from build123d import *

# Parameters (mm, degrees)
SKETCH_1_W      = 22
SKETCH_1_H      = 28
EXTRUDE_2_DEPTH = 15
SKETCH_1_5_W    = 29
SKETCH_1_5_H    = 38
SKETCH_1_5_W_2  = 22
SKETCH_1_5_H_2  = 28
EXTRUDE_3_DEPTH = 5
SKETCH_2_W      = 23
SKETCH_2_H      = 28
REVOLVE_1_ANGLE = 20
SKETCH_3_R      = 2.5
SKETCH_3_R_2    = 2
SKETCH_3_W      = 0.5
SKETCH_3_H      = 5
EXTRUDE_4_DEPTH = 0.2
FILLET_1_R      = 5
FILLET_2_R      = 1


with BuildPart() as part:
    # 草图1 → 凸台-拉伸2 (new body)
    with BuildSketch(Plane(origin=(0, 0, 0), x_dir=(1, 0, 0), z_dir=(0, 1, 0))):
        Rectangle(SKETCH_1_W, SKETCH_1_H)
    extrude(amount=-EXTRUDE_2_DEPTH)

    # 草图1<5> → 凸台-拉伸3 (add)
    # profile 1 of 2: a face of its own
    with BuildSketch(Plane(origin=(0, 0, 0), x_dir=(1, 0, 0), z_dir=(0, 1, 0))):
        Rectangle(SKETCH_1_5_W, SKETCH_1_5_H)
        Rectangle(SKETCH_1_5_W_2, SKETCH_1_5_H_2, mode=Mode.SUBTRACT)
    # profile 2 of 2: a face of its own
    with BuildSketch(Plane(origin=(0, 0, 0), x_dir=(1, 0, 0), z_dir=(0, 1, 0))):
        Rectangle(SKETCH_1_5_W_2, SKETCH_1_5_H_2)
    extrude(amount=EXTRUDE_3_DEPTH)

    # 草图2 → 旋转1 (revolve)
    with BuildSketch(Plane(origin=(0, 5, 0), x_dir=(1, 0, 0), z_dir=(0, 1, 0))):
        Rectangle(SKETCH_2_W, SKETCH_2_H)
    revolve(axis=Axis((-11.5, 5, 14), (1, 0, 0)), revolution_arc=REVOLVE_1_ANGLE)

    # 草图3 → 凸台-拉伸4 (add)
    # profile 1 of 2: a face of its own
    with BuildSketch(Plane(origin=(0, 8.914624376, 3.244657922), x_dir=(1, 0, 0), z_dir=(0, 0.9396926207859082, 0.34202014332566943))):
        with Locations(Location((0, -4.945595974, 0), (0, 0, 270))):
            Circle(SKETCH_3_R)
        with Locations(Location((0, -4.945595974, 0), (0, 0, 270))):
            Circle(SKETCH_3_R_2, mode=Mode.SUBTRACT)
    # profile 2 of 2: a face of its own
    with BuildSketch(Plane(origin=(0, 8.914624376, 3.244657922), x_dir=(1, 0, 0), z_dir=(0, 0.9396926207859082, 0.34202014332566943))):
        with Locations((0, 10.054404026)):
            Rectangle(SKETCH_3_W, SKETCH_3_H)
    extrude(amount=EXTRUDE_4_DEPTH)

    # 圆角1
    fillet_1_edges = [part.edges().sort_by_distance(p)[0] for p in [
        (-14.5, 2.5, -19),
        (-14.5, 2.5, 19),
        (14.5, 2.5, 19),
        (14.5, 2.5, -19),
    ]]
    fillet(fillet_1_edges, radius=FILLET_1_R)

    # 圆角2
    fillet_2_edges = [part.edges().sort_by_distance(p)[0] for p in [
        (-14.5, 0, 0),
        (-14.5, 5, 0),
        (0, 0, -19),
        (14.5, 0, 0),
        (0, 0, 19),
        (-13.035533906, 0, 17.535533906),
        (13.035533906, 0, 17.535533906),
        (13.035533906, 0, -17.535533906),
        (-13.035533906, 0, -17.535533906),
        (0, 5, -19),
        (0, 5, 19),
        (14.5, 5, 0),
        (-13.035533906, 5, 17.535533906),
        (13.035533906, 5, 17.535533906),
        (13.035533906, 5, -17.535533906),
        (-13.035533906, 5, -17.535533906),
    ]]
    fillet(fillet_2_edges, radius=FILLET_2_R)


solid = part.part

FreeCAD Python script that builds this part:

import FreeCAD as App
import Part
import Sketcher
from FreeCAD import Vector


def edges_at(feature, points):
    """Names of the edges that pass closest to the given points."""
    edges = feature.Shape.Edges
    near = lambda p: min(range(len(edges)), key=lambda i: edges[i].distToShape(Part.Vertex(*p))[0])
    return sorted({f"Edge{near(p) + 1}" for p in points})


def add_polygon(sketch, points):
    """Adds a closed chain of lines whose ends are joined by coincident constraints."""
    first, n = sketch.GeometryCount, len(points)
    for a, b in zip(points, points[1:] + points[:1]):
        sketch.addGeometry(Part.LineSegment(App.Vector(*a, 0), App.Vector(*b, 0)), False)
    for i in range(n):
        sketch.addConstraint(Sketcher.Constraint("Coincident", first + i, 2, first + (i + 1) % n, 1))

doc = App.newDocument("Part")
params = doc.addObject("Spreadsheet::Sheet", "Params")
for row, (alias, value) in enumerate([
    ("sketch1_width", "22 mm"),
    ("sketch1_height", "28 mm"),
    ("pad1_length", "15 mm"),
    ("sketch2_width", "29 mm"),
    ("sketch2_height", "38 mm"),
    ("pad2_length", "5 mm"),
    ("sketch3_width", "23 mm"),
    ("sketch3_height", "28 mm"),
    ("revolution_angle", "20 deg"),
    ("sketch4_diameter", "5 mm"),
    ("sketch4_diameter2", "4 mm"),
    ("sketch4_height", "5 mm"),
    ("sketch4_width", "0.5 mm"),
    ("pad3_length", "0.2 mm"),
    ("fillet_radius", "5 mm"),
    ("fillet2_radius", "1 mm"),
], start=1):
    params.set(f"A{row}", alias)
    params.set(f"B{row}", "=" + value)
    params.setAlias(f"B{row}", alias)

body = doc.addObject("PartDesign::Body", "Body")

# Sketch on XZ plane
sketch1 = body.newObject("Sketcher::SketchObject", "Sketch")
sketch1.AttachmentSupport = (doc.getObject("XZ_Plane"), [""])
sketch1.MapMode = "FlatFace"
add_polygon(sketch1, [(-11, -14), (-11, 14), (11, 14), (11, -14)])  # lines 0-3
sketch1.addConstraint(Sketcher.Constraint("Vertical", 0))
sketch1.addConstraint(Sketcher.Constraint("Horizontal", 1))
sketch1.addConstraint(Sketcher.Constraint("Vertical", 2))
sketch1.addConstraint(Sketcher.Constraint("Horizontal", 3))
sketch1.addConstraint(Sketcher.Constraint("Symmetric", 0, 2, 2, 2, -1, 1))
sketch1.addConstraint(Sketcher.Constraint("DistanceX", 1, 1, 1, 2, 22.0))
sketch1.addConstraint(Sketcher.Constraint("DistanceY", 0, 1, 0, 2, 28.0))
sketch1.setExpression("Constraints[9]", "Params.sketch1_width")
sketch1.setExpression("Constraints[10]", "Params.sketch1_height")
pad1 = body.newObject("PartDesign::Pad", "Pad")
pad1.Profile = sketch1
pad1.setExpression("Length", "Params.pad1_length")

# Sketch on XZ plane
sketch2 = body.newObject("Sketcher::SketchObject", "Sketch001")
sketch2.AttachmentSupport = (doc.getObject("XZ_Plane"), [""])
sketch2.MapMode = "FlatFace"
add_polygon(sketch2, [(-14, -19), (-14, 19), (14, 19), (14, -19)])  # lines 0-3
sketch2.addConstraint(Sketcher.Constraint("Vertical", 0))
sketch2.addConstraint(Sketcher.Constraint("Horizontal", 1))
sketch2.addConstraint(Sketcher.Constraint("Vertical", 2))
sketch2.addConstraint(Sketcher.Constraint("Horizontal", 3))
sketch2.addConstraint(Sketcher.Constraint("Symmetric", 0, 2, 2, 2, -1, 1))
sketch2.addConstraint(Sketcher.Constraint("DistanceX", 1, 1, 1, 2, 29.0))
sketch2.addConstraint(Sketcher.Constraint("DistanceY", 0, 1, 0, 2, 38.0))
sketch2.setExpression("Constraints[9]", "Params.sketch2_width")
sketch2.setExpression("Constraints[10]", "Params.sketch2_height")
pad2 = body.newObject("PartDesign::Pad", "Pad001")
pad2.Profile = sketch2
pad2.setExpression("Length", "Params.pad2_length")
pad2.Reversed = True

# Sketch on XZ plane
sketch3 = body.newObject("Sketcher::SketchObject", "Sketch002")
sketch3.AttachmentSupport = (doc.getObject("XZ_Plane"), [""])
sketch3.MapMode = "FlatFace"
sketch3.AttachmentOffset = App.Placement(Vector(0, 0, -5), App.Rotation())
add_polygon(sketch3, [(-12, -14), (-12, 14), (12, 14), (12, -14)])  # lines 0-3
sketch3.addGeometry(Part.LineSegment(Vector(-12, 14, 0), Vector(12, 14, 0)), True)  # axis
sketch3.addConstraint(Sketcher.Constraint("Vertical", 0))
sketch3.addConstraint(Sketcher.Constraint("Horizontal", 1))
sketch3.addConstraint(Sketcher.Constraint("Vertical", 2))
sketch3.addConstraint(Sketcher.Constraint("Horizontal", 3))
sketch3.addConstraint(Sketcher.Constraint("Horizontal", 4))
sketch3.addConstraint(Sketcher.Constraint("Coincident", 4, 1, 0, 2))
sketch3.addConstraint(Sketcher.Constraint("Symmetric", 0, 2, 2, 2, -1, 1))
sketch3.addConstraint(Sketcher.Constraint("Vertical", 2, 2, 4, 2))
sketch3.addConstraint(Sketcher.Constraint("DistanceX", 1, 1, 1, 2, 23.0))
sketch3.addConstraint(Sketcher.Constraint("DistanceY", 0, 1, 0, 2, 28.0))
sketch3.setExpression("Constraints[12]", "Params.sketch3_width")
sketch3.setExpression("Constraints[13]", "Params.sketch3_height")
revolution = body.newObject("PartDesign::Revolution", "Revolution")
revolution.Profile = sketch3
revolution.ReferenceAxis = (sketch3, ["Axis0"])
revolution.setExpression("Angle", "Params.revolution_angle")

# Sketch on an angled plane
sketch4 = body.newObject("Sketcher::SketchObject", "Sketch003")
sketch4.Placement = App.Placement(Vector(0, 8.914624, 3.244658), App.Rotation(Vector(1, 0, 0), Vector(0, 0.342020143, -0.939692621), Vector(0, 0.939692621, 0.342020143), "ZXY"))
sketch4.addGeometry(Part.Circle(Vector(0, -4.9, 0), Vector(0, 0, 1), 2.5), False)  # 0
sketch4.addGeometry(Part.Circle(Vector(0, -4.9, 0), Vector(0, 0, 1), 2), False)  # 1
add_polygon(sketch4, [(-0.2, 12.6), (-0.2, 7.6), (0.2, 7.6), (0.2, 12.6)])  # lines 2-5
sketch4.addConstraint(Sketcher.Constraint("Vertical", 2))
sketch4.addConstraint(Sketcher.Constraint("Horizontal", 3))
sketch4.addConstraint(Sketcher.Constraint("Vertical", 4))
sketch4.addConstraint(Sketcher.Constraint("Horizontal", 5))
sketch4.addConstraint(Sketcher.Constraint("Coincident", 1, 3, 0, 3))
sketch4.addConstraint(Sketcher.Constraint("PointOnObject", 0, 3, -2))
sketch4.addConstraint(Sketcher.Constraint("Diameter", 0, 5.0))
sketch4.addConstraint(Sketcher.Constraint("Diameter", 1, 4.0))
sketch4.addConstraint(Sketcher.Constraint("DistanceY", 2, 2, 2, 1, 5.0))
sketch4.addConstraint(Sketcher.Constraint("DistanceX", 3, 1, 3, 2, 0.5))
sketch4.addConstraint(Sketcher.Constraint("DistanceY", 0, 3, 2, 2, 12.5))
sketch4.addConstraint(Sketcher.Constraint("DistanceX", 2, 2, -1, 1, 0.25))
sketch4.addConstraint(Sketcher.Constraint("DistanceY", 0, 3, -1, 1, 4.945596))
sketch4.setExpression("Constraints[10]", "Params.sketch4_diameter")
sketch4.setExpression("Constraints[11]", "Params.sketch4_diameter2")
sketch4.setExpression("Constraints[12]", "Params.sketch4_height")
sketch4.setExpression("Constraints[13]", "Params.sketch4_width")
pad3 = body.newObject("PartDesign::Pad", "Pad002")
pad3.Profile = sketch4
pad3.setExpression("Length", "Params.pad3_length")
doc.recompute()

fillet = body.newObject("PartDesign::Fillet", "Fillet")
fillet.Base = (pad3, edges_at(pad3, [
    (-14.5, 2.5, -19),
    (-14.5, 2.5, 19),
    (14.5, 2.5, 19),
    (14.5, 2.5, -19),
]))
fillet.setExpression("Radius", "Params.fillet_radius")
doc.recompute()

fillet2 = body.newObject("PartDesign::Fillet", "Fillet001")
fillet2.Base = (fillet, edges_at(fillet, [
    (-14.5, 0, 0),
    (-14.5, 5, 0),
    (0, 0, -19),
    (14.5, 0, 0),
    (0, 0, 19),
    (-13.036, 0, 17.536),
    (13.036, 0, 17.536),
    (13.036, 0, -17.536),
    (-13.036, 0, -17.536),
    (0, 5, -19),
    (0, 5, 19),
    (14.5, 5, 0),
    (-13.036, 5, 17.536),
    (13.036, 5, 17.536),
    (13.036, 5, -17.536),
    (-13.036, 5, -17.536),
]))
fillet2.setExpression("Radius", "Params.fillet2_radius")

doc.recompute()
